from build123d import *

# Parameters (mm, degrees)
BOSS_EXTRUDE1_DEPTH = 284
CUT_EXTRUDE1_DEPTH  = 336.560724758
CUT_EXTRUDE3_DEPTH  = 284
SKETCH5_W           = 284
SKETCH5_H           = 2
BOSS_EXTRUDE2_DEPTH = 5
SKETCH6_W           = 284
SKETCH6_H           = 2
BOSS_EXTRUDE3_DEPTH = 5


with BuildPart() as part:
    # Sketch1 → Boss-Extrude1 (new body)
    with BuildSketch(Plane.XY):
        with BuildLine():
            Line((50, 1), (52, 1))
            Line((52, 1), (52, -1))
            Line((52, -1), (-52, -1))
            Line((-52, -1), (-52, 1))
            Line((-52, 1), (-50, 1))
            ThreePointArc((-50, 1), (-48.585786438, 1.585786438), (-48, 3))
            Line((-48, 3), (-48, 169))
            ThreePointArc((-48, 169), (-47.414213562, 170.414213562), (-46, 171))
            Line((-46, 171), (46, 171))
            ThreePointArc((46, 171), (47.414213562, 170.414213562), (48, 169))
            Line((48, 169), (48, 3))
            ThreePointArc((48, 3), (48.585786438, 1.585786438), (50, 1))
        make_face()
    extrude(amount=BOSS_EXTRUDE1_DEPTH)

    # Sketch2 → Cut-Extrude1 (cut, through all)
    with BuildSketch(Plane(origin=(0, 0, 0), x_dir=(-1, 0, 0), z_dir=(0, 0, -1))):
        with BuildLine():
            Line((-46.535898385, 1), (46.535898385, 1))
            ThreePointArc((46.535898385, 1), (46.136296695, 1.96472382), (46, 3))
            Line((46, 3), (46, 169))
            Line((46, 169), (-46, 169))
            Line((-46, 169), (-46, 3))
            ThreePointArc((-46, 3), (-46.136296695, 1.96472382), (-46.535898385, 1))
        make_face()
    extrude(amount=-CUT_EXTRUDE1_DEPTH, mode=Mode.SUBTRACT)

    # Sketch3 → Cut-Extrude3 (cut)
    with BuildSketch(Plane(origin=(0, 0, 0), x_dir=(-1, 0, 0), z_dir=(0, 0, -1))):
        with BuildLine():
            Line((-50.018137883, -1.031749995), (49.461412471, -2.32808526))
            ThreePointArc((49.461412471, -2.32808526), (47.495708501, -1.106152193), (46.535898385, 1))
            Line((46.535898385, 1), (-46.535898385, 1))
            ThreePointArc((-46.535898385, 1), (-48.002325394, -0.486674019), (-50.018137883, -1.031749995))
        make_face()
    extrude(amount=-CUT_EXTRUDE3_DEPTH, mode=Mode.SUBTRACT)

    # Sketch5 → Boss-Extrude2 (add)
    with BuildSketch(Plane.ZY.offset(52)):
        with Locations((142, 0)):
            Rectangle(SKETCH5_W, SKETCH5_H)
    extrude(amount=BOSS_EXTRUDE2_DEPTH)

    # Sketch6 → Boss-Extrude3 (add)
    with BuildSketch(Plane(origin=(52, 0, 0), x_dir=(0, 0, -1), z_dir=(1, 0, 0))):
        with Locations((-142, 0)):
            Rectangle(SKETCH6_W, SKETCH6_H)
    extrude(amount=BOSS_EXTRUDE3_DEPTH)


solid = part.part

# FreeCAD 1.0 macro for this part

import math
import FreeCAD as App
import Part
import Sketcher
from FreeCAD import Vector
Q = App.Units.Quantity

doc = App.newDocument("Part")
body = doc.addObject("PartDesign::Body", "Body")

sketch1 = body.newObject("Sketcher::SketchObject", "Sketch")
sketch1.AttachmentSupport = (doc.getObject("XY_Plane"), [""])
sketch1.MapMode = "FlatFace"
sketch1.addGeometry([
    Part.LineSegment(Vector(52, 1, 0), Vector(50, 1, 0)),
    Part.ArcOfCircle(Part.Circle(Vector(50, 3, 0), Vector(0, 0, 1), 2), math.radians(-180), math.radians(-90)),
    Part.LineSegment(Vector(48, 3, 0), Vector(48, 169, 0)),
    Part.ArcOfCircle(Part.Circle(Vector(46, 169, 0), Vector(0, 0, 1), 2), math.radians(0), math.radians(90)),
    Part.LineSegment(Vector(46, 171, 0), Vector(-46, 171, 0)),
    Part.ArcOfCircle(Part.Circle(Vector(-46, 169, 0), Vector(0, 0, 1), 2), math.radians(90), math.radians(180)),
    Part.LineSegment(Vector(-48, 169, 0), Vector(-48, 3, 0)),
    Part.ArcOfCircle(Part.Circle(Vector(-50, 3, 0), Vector(0, 0, 1), 2), math.radians(-90), math.radians(0)),
    Part.LineSegment(Vector(-50, 1, 0), Vector(-52, 1, 0)),
    Part.LineSegment(Vector(-52, 1, 0), Vector(-52, -1, 0)),
    Part.LineSegment(Vector(-52, -1, 0), Vector(52, -1, 0)),
    Part.LineSegment(Vector(52, -1, 0), Vector(52, 1, 0)),
], False)
sketch1.addConstraint([
    Sketcher.Constraint("Tangent", 0, 2, 1, 2),
    Sketcher.Constraint("Tangent", 1, 1, 2, 1),
    Sketcher.Constraint("Tangent", 2, 2, 3, 1),
    Sketcher.Constraint("Tangent", 3, 2, 4, 1),
    Sketcher.Constraint("Tangent", 4, 2, 5, 1),
    Sketcher.Constraint("Tangent", 5, 2, 6, 1),
    Sketcher.Constraint("Tangent", 6, 2, 7, 2),
    Sketcher.Constraint("Tangent", 7, 1, 8, 1),
    Sketcher.Constraint("Coincident", 8, 2, 9, 1),
    Sketcher.Constraint("Coincident", 9, 2, 10, 1),
    Sketcher.Constraint("Coincident", 10, 2, 11, 1),
    Sketcher.Constraint("Coincident", 11, 2, 0, 1),
    Sketcher.Constraint("Horizontal", 0),
    Sketcher.Constraint("Vertical", 2),
    Sketcher.Constraint("Horizontal", 4),
    Sketcher.Constraint("Vertical", 6),
    Sketcher.Constraint("Horizontal", 8),
    Sketcher.Constraint("Vertical", 9),
    Sketcher.Constraint("Horizontal", 10),
    Sketcher.Constraint("Vertical", 11),
    Sketcher.Constraint("Equal", 1, 3),
    Sketcher.Constraint("Equal", 3, 5),
    Sketcher.Constraint("Equal", 5, 7),
    Sketcher.Constraint("Symmetric", 8, 2, 10, 2, -1, 1),
    Sketcher.Constraint("Symmetric", 1, 3, 7, 3, -2),
    Sketcher.Constraint("Equal", 8, 9),
    Sketcher.Constraint("Radius", 1, Q("2 mm")),
    Sketcher.Constraint("DistanceX", 0, 2, 0, 1, Q("2 mm")),
    Sketcher.Constraint("DistanceX", 4, 2, 4, 1, Q("92 mm")),
    Sketcher.Constraint("DistanceY", 2, 1, 2, 2, Q("166 mm")),
])
pad1 = body.newObject("PartDesign::Pad", "Pad")
pad1.Profile = sketch1
pad1.Length = 284

sketch2 = body.newObject("Sketcher::SketchObject", "Sketch001")
sketch2.AttachmentSupport = (doc.getObject("XY_Plane"), [""])
sketch2.MapMode = "FlatFace"
sketch2.addGeometry([
    Part.LineSegment(Vector(46.5, 1, 0), Vector(-46.5, 1, 0)),
    Part.ArcOfCircle(Part.Circle(Vector(-50, 3, 0), Vector(0, 0, 1), 4), math.radians(-30), math.radians(0)),
    Part.LineSegment(Vector(-46, 3, 0), Vector(-46, 169, 0)),
    Part.LineSegment(Vector(-46, 169, 0), Vector(46, 169, 0)),
    Part.LineSegment(Vector(46, 169, 0), Vector(46, 3, 0)),
    Part.ArcOfCircle(Part.Circle(Vector(50, 3, 0), Vector(0, 0, 1), 4), math.radians(-180), math.radians(-150)),
], False)
sketch2.addConstraint([
    Sketcher.Constraint("Coincident", 0, 2, 1, 1),
    Sketcher.Constraint("Tangent", 1, 2, 2, 1),
    Sketcher.Constraint("Coincident", 2, 2, 3, 1),
    Sketcher.Constraint("Coincident", 3, 2, 4, 1),
    Sketcher.Constraint("Tangent", 4, 2, 5, 1),
    Sketcher.Constraint("Coincident", 5, 2, 0, 1),
    Sketcher.Constraint("Horizontal", 0),
    Sketcher.Constraint("Vertical", 2),
    Sketcher.Constraint("Horizontal", 3),
    Sketcher.Constraint("Vertical", 4),
    Sketcher.Constraint("Equal", 1, 5),
    Sketcher.Constraint("Symmetric", 1, 3, 5, 3, -2),
    Sketcher.Constraint("Radius", 1, Q("4 mm")),
    Sketcher.Constraint("DistanceX", 3, 1, 3, 2, Q("92 mm")),
    Sketcher.Constraint("DistanceY", 2, 1, 2, 2, Q("166 mm")),
    Sketcher.Constraint("DistanceY", -1, 1, 1, 3, Q("3 mm")),
    Sketcher.Constraint("DistanceY", -1, 1, 0, 2, Q("1 mm")),
])
pocket1 = body.newObject("PartDesign::Pocket", "Pocket")
pocket1.Profile = sketch2
pocket1.Type = "ThroughAll"
pocket1.Reversed = True

sketch3 = body.newObject("Sketcher::SketchObject", "Sketch002")
sketch3.AttachmentSupport = (doc.getObject("XY_Plane"), [""])
sketch3.MapMode = "FlatFace"
sketch3.addGeometry([
    Part.LineSegment(Vector(50, -1, 0), Vector(-49.5, -2.3, 0)),
    Part.ArcOfCircle(Part.Circle(Vector(-50.5, 1.5, 0), Vector(0, 0, 1), 4), math.radians(-75), math.radians(-8)),
    Part.LineSegment(Vector(-46.5, 1, 0), Vector(46.5, 1, 0)),
    Part.ArcOfCircle(Part.Circle(Vector(50, 3, 0), Vector(0, 0, 1), 4), math.radians(-151), math.radians(-90)),
], False)
sketch3.addConstraint([
    Sketcher.Constraint("Coincident", 0, 2, 1, 1),
    Sketcher.Constraint("Coincident", 1, 2, 2, 1),
    Sketcher.Constraint("Coincident", 2, 2, 3, 1),
    Sketcher.Constraint("Coincident", 3, 2, 0, 1),
    Sketcher.Constraint("Horizontal", 2),
    Sketcher.Constraint("Equal", 1, 3),
    Sketcher.Constraint("Radius", 1, Q("4 mm")),
    Sketcher.Constraint("DistanceY", -1, 1, 1, 2, Q("1 mm")),
    Sketcher.Constraint("DistanceX", 1, 2, -1, 1, Q("46.535898 mm")),
    Sketcher.Constraint("DistanceX", -1, 1, 2, 2, Q("46.535898 mm")),
    Sketcher.Constraint("DistanceY", -1, 1, 1, 3, Q("1.534731 mm")),
    Sketcher.Constraint("DistanceY", -1, 1, 3, 3, Q("2.96825 mm")),
    Sketcher.Constraint("DistanceX", 0, 2, 3, 3, Q("99.47955 mm")),
    Sketcher.Constraint("DistanceX", 2, 2, 3, 2, Q("3.482239 mm")),
])
pocket2 = body.newObject("PartDesign::Pocket", "Pocket001")
pocket2.Profile = sketch3
pocket2.Length = 284
pocket2.Reversed = True

sketch4 = body.newObject("Sketcher::SketchObject", "Sketch003")
sketch4.AttachmentSupport = (doc.getObject("YZ_Plane"), [""])
sketch4.MapMode = "FlatFace"
sketch4.AttachmentOffset = App.Placement(Vector(0, 0, -52), App.Rotation())
sketch4.addGeometry([
    Part.LineSegment(Vector(1, 0, 0), Vector(-1, 0, 0)),
    Part.LineSegment(Vector(-1, 0, 0), Vector(-1, 284, 0)),
    Part.LineSegment(Vector(-1, 284, 0), Vector(1, 284, 0)),
    Part.LineSegment(Vector(1, 284, 0), Vector(1, 0, 0)),
], False)
sketch4.addConstraint([
    Sketcher.Constraint("Coincident", 0, 2, 1, 1),
    Sketcher.Constraint("Coincident", 1, 2, 2, 1),
    Sketcher.Constraint("Coincident", 2, 2, 3, 1),
    Sketcher.Constraint("Coincident", 3, 2, 0, 1),
    Sketcher.Constraint("Horizontal", 0),
    Sketcher.Constraint("Vertical", 1),
    Sketcher.Constraint("Horizontal", 2),
    Sketcher.Constraint("Vertical", 3),
    Sketcher.Constraint("Symmetric", 0, 2, 3, 2, -1, 1),
    Sketcher.Constraint("DistanceX", 0, 2, 0, 1, Q("2 mm")),
    Sketcher.Constraint("DistanceY", 1, 1, 1, 2, Q("284 mm")),
])
pad2 = body.newObject("PartDesign::Pad", "Pad001")
pad2.Profile = sketch4
pad2.Length = 5
pad2.Reversed = True

sketch5 = body.newObject("Sketcher::SketchObject", "Sketch004")
sketch5.AttachmentSupport = (doc.getObject("YZ_Plane"), [""])
sketch5.MapMode = "FlatFace"
sketch5.AttachmentOffset = App.Placement(Vector(0, 0, 52), App.Rotation())
sketch5.addGeometry([
    Part.LineSegment(Vector(1, 284, 0), Vector(-1, 284, 0)),
    Part.LineSegment(Vector(-1, 284, 0), Vector(-1, 0, 0)),
    Part.LineSegment(Vector(-1, 0, 0), Vector(1, 0, 0)),
    Part.LineSegment(Vector(1, 0, 0), Vector(1, 284, 0)),
], False)
sketch5.addConstraint([
    Sketcher.Constraint("Coincident", 0, 2, 1, 1),
    Sketcher.Constraint("Coincident", 1, 2, 2, 1),
    Sketcher.Constraint("Coincident", 2, 2, 3, 1),
    Sketcher.Constraint("Coincident", 3, 2, 0, 1),
    Sketcher.Constraint("Horizontal", 0),
    Sketcher.Constraint("Vertical", 1),
    Sketcher.Constraint("Horizontal", 2),
    Sketcher.Constraint("Vertical", 3),
    Sketcher.Constraint("Symmetric", 1, 2, 2, 2, -1, 1),
    Sketcher.Constraint("DistanceX", 0, 2, 0, 1, Q("2 mm")),
    Sketcher.Constraint("DistanceY", 1, 2, 1, 1, Q("284 mm")),
])
pad3 = body.newObject("PartDesign::Pad", "Pad002")
pad3.Profile = sketch5
pad3.Length = 5

doc.recompute()
